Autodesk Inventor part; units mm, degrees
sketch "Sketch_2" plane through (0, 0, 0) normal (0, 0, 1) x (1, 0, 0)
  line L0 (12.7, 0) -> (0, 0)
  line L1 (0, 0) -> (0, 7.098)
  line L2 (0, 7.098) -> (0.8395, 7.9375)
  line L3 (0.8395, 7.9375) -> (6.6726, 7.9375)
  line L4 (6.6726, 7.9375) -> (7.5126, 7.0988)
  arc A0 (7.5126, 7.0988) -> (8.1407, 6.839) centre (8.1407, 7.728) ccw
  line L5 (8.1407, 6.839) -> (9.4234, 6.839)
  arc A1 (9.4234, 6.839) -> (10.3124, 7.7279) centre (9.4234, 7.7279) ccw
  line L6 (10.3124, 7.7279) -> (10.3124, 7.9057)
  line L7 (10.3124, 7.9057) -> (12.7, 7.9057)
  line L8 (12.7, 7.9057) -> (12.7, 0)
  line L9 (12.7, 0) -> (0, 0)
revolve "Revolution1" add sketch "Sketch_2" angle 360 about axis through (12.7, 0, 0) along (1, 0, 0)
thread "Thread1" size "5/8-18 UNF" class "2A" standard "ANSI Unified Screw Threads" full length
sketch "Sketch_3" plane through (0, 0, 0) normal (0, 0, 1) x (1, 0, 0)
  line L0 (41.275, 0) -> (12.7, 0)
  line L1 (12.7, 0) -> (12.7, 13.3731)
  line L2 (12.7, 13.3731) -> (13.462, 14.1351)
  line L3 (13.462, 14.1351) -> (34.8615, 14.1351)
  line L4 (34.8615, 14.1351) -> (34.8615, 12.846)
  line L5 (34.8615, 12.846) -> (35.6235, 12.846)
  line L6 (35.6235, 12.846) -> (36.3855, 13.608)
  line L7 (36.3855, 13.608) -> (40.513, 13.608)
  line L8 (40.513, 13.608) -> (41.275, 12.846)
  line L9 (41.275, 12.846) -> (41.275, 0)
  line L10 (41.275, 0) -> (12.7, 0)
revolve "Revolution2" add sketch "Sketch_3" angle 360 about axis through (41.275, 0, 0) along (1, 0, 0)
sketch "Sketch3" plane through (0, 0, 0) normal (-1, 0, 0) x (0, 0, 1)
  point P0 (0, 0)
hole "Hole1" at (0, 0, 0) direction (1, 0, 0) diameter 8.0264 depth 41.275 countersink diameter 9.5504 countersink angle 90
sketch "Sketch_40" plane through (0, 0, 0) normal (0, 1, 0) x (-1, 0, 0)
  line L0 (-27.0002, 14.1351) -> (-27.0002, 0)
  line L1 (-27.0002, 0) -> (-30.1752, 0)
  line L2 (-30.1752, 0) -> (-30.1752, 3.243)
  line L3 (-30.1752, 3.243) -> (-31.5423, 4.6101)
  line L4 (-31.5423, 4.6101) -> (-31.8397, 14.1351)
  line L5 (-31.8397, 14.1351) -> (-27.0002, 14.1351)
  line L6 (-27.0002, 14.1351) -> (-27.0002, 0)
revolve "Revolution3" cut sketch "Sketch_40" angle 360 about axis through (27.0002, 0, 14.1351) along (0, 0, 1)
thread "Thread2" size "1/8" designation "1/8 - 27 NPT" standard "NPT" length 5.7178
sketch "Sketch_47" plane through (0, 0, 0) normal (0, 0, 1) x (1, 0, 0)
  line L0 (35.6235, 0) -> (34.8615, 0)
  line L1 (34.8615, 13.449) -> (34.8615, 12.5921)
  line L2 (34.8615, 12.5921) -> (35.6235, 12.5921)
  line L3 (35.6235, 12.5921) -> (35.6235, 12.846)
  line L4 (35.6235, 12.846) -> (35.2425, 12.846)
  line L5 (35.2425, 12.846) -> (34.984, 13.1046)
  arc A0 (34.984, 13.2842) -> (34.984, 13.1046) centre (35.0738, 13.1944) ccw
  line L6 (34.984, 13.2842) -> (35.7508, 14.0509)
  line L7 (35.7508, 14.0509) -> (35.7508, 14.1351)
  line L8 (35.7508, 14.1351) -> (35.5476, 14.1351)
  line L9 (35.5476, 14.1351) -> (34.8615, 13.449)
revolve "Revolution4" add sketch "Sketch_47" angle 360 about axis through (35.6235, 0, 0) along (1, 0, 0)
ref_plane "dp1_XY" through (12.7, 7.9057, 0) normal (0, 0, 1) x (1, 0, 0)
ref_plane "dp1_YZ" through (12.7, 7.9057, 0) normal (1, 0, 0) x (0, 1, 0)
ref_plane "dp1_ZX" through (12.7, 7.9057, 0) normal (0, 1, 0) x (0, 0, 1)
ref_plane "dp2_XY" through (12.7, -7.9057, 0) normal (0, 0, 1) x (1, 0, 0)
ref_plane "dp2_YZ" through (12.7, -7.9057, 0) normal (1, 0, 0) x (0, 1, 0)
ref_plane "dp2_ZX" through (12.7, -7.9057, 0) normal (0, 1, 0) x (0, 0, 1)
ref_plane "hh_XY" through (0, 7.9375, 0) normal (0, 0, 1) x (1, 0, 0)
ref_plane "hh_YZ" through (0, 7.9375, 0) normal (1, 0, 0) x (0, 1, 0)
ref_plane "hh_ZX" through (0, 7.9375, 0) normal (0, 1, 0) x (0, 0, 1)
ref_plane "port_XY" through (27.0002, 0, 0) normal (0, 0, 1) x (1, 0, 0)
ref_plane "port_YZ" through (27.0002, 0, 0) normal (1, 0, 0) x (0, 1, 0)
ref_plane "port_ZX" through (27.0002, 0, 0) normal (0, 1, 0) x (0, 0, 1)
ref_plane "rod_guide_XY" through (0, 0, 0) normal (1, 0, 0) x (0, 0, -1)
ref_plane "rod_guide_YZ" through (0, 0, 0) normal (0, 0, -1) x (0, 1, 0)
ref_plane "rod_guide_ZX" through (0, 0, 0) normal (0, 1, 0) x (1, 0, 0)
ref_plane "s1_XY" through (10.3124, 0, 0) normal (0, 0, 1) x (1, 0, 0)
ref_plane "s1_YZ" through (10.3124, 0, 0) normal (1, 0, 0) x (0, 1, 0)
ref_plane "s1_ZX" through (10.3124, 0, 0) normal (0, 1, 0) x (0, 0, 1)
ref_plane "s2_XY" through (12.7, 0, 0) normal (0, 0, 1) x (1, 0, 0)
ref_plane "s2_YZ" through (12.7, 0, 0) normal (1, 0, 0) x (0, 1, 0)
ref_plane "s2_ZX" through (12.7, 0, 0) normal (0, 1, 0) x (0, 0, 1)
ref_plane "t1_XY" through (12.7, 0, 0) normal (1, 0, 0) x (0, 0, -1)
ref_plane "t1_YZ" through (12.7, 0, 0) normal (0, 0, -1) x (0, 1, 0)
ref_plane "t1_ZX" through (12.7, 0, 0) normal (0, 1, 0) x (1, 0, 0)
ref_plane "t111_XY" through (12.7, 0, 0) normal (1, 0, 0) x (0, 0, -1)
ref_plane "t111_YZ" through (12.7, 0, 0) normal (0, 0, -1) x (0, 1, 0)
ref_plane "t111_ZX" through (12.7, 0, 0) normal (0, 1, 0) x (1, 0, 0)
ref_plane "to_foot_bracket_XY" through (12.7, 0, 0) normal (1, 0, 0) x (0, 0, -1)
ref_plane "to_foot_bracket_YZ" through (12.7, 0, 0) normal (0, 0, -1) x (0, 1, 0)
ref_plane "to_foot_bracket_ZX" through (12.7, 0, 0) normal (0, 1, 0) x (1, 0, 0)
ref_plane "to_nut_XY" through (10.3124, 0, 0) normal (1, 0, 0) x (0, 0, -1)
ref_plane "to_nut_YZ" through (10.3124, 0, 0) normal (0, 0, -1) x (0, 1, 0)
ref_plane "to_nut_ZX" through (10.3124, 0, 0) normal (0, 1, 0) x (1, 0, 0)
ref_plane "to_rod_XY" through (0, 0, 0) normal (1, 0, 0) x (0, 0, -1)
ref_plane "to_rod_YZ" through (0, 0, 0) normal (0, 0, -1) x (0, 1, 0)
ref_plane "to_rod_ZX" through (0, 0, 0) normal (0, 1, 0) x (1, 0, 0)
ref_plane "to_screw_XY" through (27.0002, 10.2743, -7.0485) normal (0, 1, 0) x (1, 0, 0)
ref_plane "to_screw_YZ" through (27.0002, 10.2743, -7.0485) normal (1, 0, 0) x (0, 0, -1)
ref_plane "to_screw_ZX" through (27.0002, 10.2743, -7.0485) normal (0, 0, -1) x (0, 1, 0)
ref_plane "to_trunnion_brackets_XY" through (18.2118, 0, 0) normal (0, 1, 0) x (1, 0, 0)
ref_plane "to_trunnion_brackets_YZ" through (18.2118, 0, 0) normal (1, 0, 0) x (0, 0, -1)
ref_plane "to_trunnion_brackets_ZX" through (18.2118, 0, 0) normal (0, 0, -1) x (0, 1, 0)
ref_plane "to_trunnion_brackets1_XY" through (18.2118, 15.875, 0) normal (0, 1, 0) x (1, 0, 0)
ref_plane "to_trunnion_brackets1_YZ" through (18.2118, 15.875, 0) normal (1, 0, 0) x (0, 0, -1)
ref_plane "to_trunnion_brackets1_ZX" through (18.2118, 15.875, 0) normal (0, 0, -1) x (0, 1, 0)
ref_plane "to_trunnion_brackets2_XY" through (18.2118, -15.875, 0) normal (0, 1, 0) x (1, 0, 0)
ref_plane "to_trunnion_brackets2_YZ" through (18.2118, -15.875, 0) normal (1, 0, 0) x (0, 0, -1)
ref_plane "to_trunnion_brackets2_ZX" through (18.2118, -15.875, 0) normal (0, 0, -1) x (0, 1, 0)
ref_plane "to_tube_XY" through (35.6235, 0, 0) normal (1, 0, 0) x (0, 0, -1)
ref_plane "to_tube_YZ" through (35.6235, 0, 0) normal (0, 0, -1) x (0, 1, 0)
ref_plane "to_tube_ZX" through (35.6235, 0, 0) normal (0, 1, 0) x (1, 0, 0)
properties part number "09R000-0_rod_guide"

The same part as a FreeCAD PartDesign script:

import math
import FreeCAD as App
import Part
import Sketcher
Q = App.Units.Quantity

doc = App.newDocument("Part")
body = doc.addObject("PartDesign::Body", "Body")

# Sketch on XY plane
sketch1 = body.newObject("Sketcher::SketchObject", "Sketch")
sketch1.AttachmentSupport = (doc.getObject("XY_Plane"), [""])
sketch1.MapMode = "FlatFace"
sketch1.addGeometry([
    Part.LineSegment(App.Vector(0, 0, 0), App.Vector(12.7, 0, 0)),  # 0
    Part.LineSegment(App.Vector(12.7, 0, 0), App.Vector(12.7, 7.91, 0)),  # 1
    Part.LineSegment(App.Vector(12.7, 7.91, 0), App.Vector(10.31, 7.91, 0)),  # 2
    Part.LineSegment(App.Vector(10.31, 7.91, 0), App.Vector(10.31, 7.73, 0)),  # 3
    Part.ArcOfCircle(Part.Circle(App.Vector(9.42, 7.73, 0), App.Vector(0, 0, 1), 0.89), math.radians(-90), math.radians(0)),  # 4
    Part.LineSegment(App.Vector(9.42, 6.84, 0), App.Vector(8.14, 6.84, 0)),  # 5
    Part.ArcOfCircle(Part.Circle(App.Vector(8.14, 7.73, 0), App.Vector(0, 0, 1), 0.89), math.radians(-135), math.radians(-90)),  # 6
    Part.LineSegment(App.Vector(7.51, 7.1, 0), App.Vector(6.67, 7.94, 0)),  # 7
    Part.LineSegment(App.Vector(6.67, 7.94, 0), App.Vector(0.84, 7.94, 0)),  # 8
    Part.LineSegment(App.Vector(0.84, 7.94, 0), App.Vector(0, 7.1, 0)),  # 9
    Part.LineSegment(App.Vector(0, 7.1, 0), App.Vector(0, 0, 0)),  # 10
], False)
sketch1.addConstraint([
    Sketcher.Constraint("Coincident", 0, 2, 1, 1),
    Sketcher.Constraint("Coincident", 1, 2, 2, 1),
    Sketcher.Constraint("Coincident", 2, 2, 3, 1),
    Sketcher.Constraint("Tangent", 3, 2, 4, 2),
    Sketcher.Constraint("Tangent", 4, 1, 5, 1),
    Sketcher.Constraint("Tangent", 5, 2, 6, 2),
    Sketcher.Constraint("Tangent", 6, 1, 7, 1),
    Sketcher.Constraint("Coincident", 7, 2, 8, 1),
    Sketcher.Constraint("Coincident", 8, 2, 9, 1),
    Sketcher.Constraint("Coincident", 9, 2, 10, 1),
    Sketcher.Constraint("Coincident", 10, 2, 0, 1),
    Sketcher.Constraint("Horizontal", 0),
    Sketcher.Constraint("Vertical", 1),
    Sketcher.Constraint("Horizontal", 2),
    Sketcher.Constraint("Vertical", 3),
    Sketcher.Constraint("Horizontal", 5),
    Sketcher.Constraint("Horizontal", 8),
    Sketcher.Constraint("Vertical", 10),
    Sketcher.Constraint("Coincident", 10, 2, -1, 1),
    Sketcher.Constraint("Equal", 4, 6),
    Sketcher.Constraint("DistanceX", 0, 1, 0, 2, Q("0.5 in")),
    Sketcher.Constraint("Angle", 9, Q("-135 deg")),
    Sketcher.Constraint("Radius", 4, Q("0.035 in")),
    Sketcher.Constraint("DistanceX", 2, 2, 2, 1, Q("0.094 in")),
    Sketcher.Constraint("DistanceY", 3, 2, 3, 1, Q("0.007 in")),
    Sketcher.Constraint("DistanceX", 5, 2, 5, 1, Q("0.0505 in")),
    Sketcher.Constraint("DistanceY", -1, 1, 7, 2, Q("0.3125 in")),
    Sketcher.Constraint("DistanceX", 8, 2, 8, 1, Q("5.833 mm")),
    Sketcher.Constraint("DistanceY", 1, 1, 1, 2, Q("7.9057 mm")),
    Sketcher.Constraint("DistanceY", 10, 2, 10, 1, Q("7.098 mm")),
])
revolution = body.newObject("PartDesign::Revolution", "Revolution")
revolution.Profile = sketch1
revolution.ReferenceAxis = (sketch1, ["H_Axis"])
revolution.Angle = 360

# Sketch on XY plane
sketch2 = body.newObject("Sketcher::SketchObject", "Sketch001")
sketch2.AttachmentSupport = (doc.getObject("XY_Plane"), [""])
sketch2.MapMode = "FlatFace"
sketch2.addGeometry([
    Part.LineSegment(App.Vector(12.7, 0, 0), App.Vector(41.3, 0, 0)),  # 0
    Part.LineSegment(App.Vector(41.3, 0, 0), App.Vector(41.3, 12.8, 0)),  # 1
    Part.LineSegment(App.Vector(41.3, 12.8, 0), App.Vector(40.5, 13.6, 0)),  # 2
    Part.LineSegment(App.Vector(40.5, 13.6, 0), App.Vector(36.4, 13.6, 0)),  # 3
    Part.LineSegment(App.Vector(36.4, 13.6, 0), App.Vector(35.6, 12.8, 0)),  # 4
    Part.LineSegment(App.Vector(35.6, 12.8, 0), App.Vector(34.9, 12.8, 0)),  # 5
    Part.LineSegment(App.Vector(34.9, 12.8, 0), App.Vector(34.9, 14.1, 0)),  # 6
    Part.LineSegment(App.Vector(34.9, 14.1, 0), App.Vector(13.5, 14.1, 0)),  # 7
    Part.LineSegment(App.Vector(13.5, 14.1, 0), App.Vector(12.7, 13.4, 0)),  # 8
    Part.LineSegment(App.Vector(12.7, 13.4, 0), App.Vector(12.7, 0, 0)),  # 9
], False)
sketch2.addConstraint([
    Sketcher.Constraint("Coincident", 0, 2, 1, 1),
    Sketcher.Constraint("Coincident", 1, 2, 2, 1),
    Sketcher.Constraint("Coincident", 2, 2, 3, 1),
    Sketcher.Constraint("Coincident", 3, 2, 4, 1),
    Sketcher.Constraint("Coincident", 4, 2, 5, 1),
    Sketcher.Constraint("Coincident", 5, 2, 6, 1),
    Sketcher.Constraint("Coincident", 6, 2, 7, 1),
    Sketcher.Constraint("Coincident", 7, 2, 8, 1),
    Sketcher.Constraint("Coincident", 8, 2, 9, 1),
    Sketcher.Constraint("Coincident", 9, 2, 0, 1),
    Sketcher.Constraint("Horizontal", 0),
    Sketcher.Constraint("Vertical", 1),
    Sketcher.Constraint("Horizontal", 3),
    Sketcher.Constraint("Horizontal", 5),
    Sketcher.Constraint("Vertical", 6),
    Sketcher.Constraint("Horizontal", 7),
    Sketcher.Constraint("Vertical", 9),
    Sketcher.Constraint("PointOnObject", 0, 2, -1),
    Sketcher.Constraint("Perpendicular", 2, 4),
    Sketcher.Constraint("Parallel", 4, 8),
    Sketcher.Constraint("Horizontal", 1, 2, 4, 2),
    Sketcher.Constraint("Equal", 2, 4),
    Sketcher.Constraint("Equal", 4, 8),
    Sketcher.Constraint("DistanceX", 5, 2, 5, 1, Q("0.03 in")),
    Sketcher.Constraint("DistanceX", -1, 1, 8, 2, Q("0.5 in")),
    Sketcher.Constraint("DistanceX", 0, 1, 0, 2, Q("1.125 in")),
    Sketcher.Constraint("DistanceX", -1, 1, 7, 2, Q("0.53 in")),
    Sketcher.Constraint("DistanceX", 3, 2, 3, 1, Q("0.1625 in")),
    Sketcher.Constraint("DistanceY", 9, 2, 9, 1, Q("0.5265 in")),
    Sketcher.Constraint("DistanceY", 1, 1, 1, 2, Q("12.846 mm")),
])
revolution2 = body.newObject("PartDesign::Revolution", "Revolution001")
revolution2.Profile = sketch2
revolution2.ReferenceAxis = (sketch2, ["H_Axis"])
revolution2.Angle = 360

# Sketch on YZ plane
sketch3 = body.newObject("Sketcher::SketchObject", "Sketch002")
sketch3.AttachmentSupport = (doc.getObject("YZ_Plane"), [""])
sketch3.MapMode = "FlatFace"
sketch3.addGeometry(Part.Circle(App.Vector(0, 0, 0), App.Vector(0, 0, 1), 4), False)
sketch3.addConstraint([
    Sketcher.Constraint("Coincident", 0, 3, -1, 1),
    Sketcher.Constraint("Diameter", 0, Q("0.316 in")),
])
doc.recompute()
hole = body.newObject("PartDesign::Hole", "Hole")
hole.Profile = sketch3
hole.ThreadType = "None"
hole.Diameter = Q("0.316 in")
hole.DepthType = "Dimension"
hole.Depth = Q("1.625 in")
hole.DrillPoint = "Flat"
hole.HoleCutType = "Countersink"
hole.HoleCutDiameter = Q("0.376 in")
hole.HoleCutCountersinkAngle = 90
hole.Reversed = True

# Sketch on XZ plane
sketch4 = body.newObject("Sketcher::SketchObject", "Sketch003")
sketch4.AttachmentSupport = (doc.getObject("XZ_Plane"), [""])
sketch4.MapMode = "FlatFace"
sketch4.addGeometry([
    Part.LineSegment(App.Vector(27, 0, 0), App.Vector(27, 14.1, 0)),  # 0
    Part.LineSegment(App.Vector(27, 14.1, 0), App.Vector(31.8, 14.1, 0)),  # 1
    Part.LineSegment(App.Vector(31.8, 14.1, 0), App.Vector(31.5, 4.6, 0)),  # 2
    Part.LineSegment(App.Vector(31.5, 4.6, 0), App.Vector(30.2, 3.2, 0)),  # 3
    Part.LineSegment(App.Vector(30.2, 3.2, 0), App.Vector(30.2, 0, 0)),  # 4
    Part.LineSegment(App.Vector(30.2, 0, 0), App.Vector(27, 0, 0)),  # 5
], False)
sketch4.addGeometry(Part.LineSegment(App.Vector(27, 0, 0), App.Vector(27, 14.1, 0)), True)  # axis
sketch4.addConstraint([
    Sketcher.Constraint("Coincident", 0, 2, 1, 1),
    Sketcher.Constraint("Coincident", 1, 2, 2, 1),
    Sketcher.Constraint("Coincident", 2, 2, 3, 1),
    Sketcher.Constraint("Coincident", 3, 2, 4, 1),
    Sketcher.Constraint("Coincident", 4, 2, 5, 1),
    Sketcher.Constraint("Coincident", 5, 2, 0, 1),
    Sketcher.Constraint("Vertical", 0),
    Sketcher.Constraint("Horizontal", 1),
    Sketcher.Constraint("Vertical", 4),
    Sketcher.Constraint("Horizontal", 5),
    Sketcher.Constraint("Vertical", 6),
    Sketcher.Constraint("Coincident", 6, 1, 5, 2),
    Sketcher.Constraint("PointOnObject", 4, 2, -1),
    Sketcher.Constraint("Horizontal", 1, 2, 6, 2),
    Sketcher.Constraint("Angle", 3, Q("-135 deg")),
    Sketcher.Constraint("DistanceX", 5, 2, 5, 1, Q("0.125 in")),
    Sketcher.Constraint("DistanceY", 0, 1, 0, 2, Q("0.5565 in")),
    Sketcher.Constraint("DistanceX", -1, 1, 0, 2, Q("1.063 in")),
    Sketcher.Constraint("DistanceY", 2, 2, 1, 2, Q("0.375 in")),
    Sketcher.Constraint("DistanceX", 1, 1, 1, 2, Q("4.8395 mm")),
    Sketcher.Constraint("DistanceY", 4, 2, 4, 1, Q("3.243 mm")),
])
groove = body.newObject("PartDesign::Groove", "Groove")
groove.Profile = sketch4
groove.ReferenceAxis = (sketch4, ["Axis0"])
groove.Angle = 360

# Sketch on XY plane
sketch5 = body.newObject("Sketcher::SketchObject", "Sketch004")
sketch5.AttachmentSupport = (doc.getObject("XY_Plane"), [""])
sketch5.MapMode = "FlatFace"
sketch5.addGeometry([
    Part.LineSegment(App.Vector(35.55, 14.14, 0), App.Vector(34.86, 13.45, 0)),  # 0
    Part.LineSegment(App.Vector(34.86, 13.45, 0), App.Vector(34.86, 12.59, 0)),  # 1
    Part.LineSegment(App.Vector(34.86, 12.59, 0), App.Vector(35.62, 12.59, 0)),  # 2
    Part.LineSegment(App.Vector(35.62, 12.59, 0), App.Vector(35.62, 12.85, 0)),  # 3
    Part.LineSegment(App.Vector(35.62, 12.85, 0), App.Vector(35.24, 12.85, 0)),  # 4
    Part.LineSegment(App.Vector(35.24, 12.85, 0), App.Vector(34.98, 13.1, 0)),  # 5
    Part.ArcOfCircle(Part.Circle(App.Vector(35.07, 13.19, 0), App.Vector(0, 0, 1), 0.13), math.radians(135), math.radians(225)),  # 6
    Part.LineSegment(App.Vector(34.98, 13.28, 0), App.Vector(35.75, 14.05, 0)),  # 7
    Part.LineSegment(App.Vector(35.75, 14.05, 0), App.Vector(35.75, 14.14, 0)),  # 8
    Part.LineSegment(App.Vector(35.75, 14.14, 0), App.Vector(35.55, 14.14, 0)),  # 9
], False)
sketch5.addConstraint([
    Sketcher.Constraint("Coincident", 0, 2, 1, 1),
    Sketcher.Constraint("Coincident", 1, 2, 2, 1),
    Sketcher.Constraint("Coincident", 2, 2, 3, 1),
    Sketcher.Constraint("Coincident", 3, 2, 4, 1),
    Sketcher.Constraint("Coincident", 4, 2, 5, 1),
    Sketcher.Constraint("Tangent", 5, 2, 6, 2),
    Sketcher.Constraint("Tangent", 6, 1, 7, 1),
    Sketcher.Constraint("Coincident", 7, 2, 8, 1),
    Sketcher.Constraint("Coincident", 8, 2, 9, 1),
    Sketcher.Constraint("Coincident", 9, 2, 0, 1),
    Sketcher.Constraint("Vertical", 1),
    Sketcher.Constraint("Horizontal", 2),
    Sketcher.Constraint("Vertical", 3),
    Sketcher.Constraint("Horizontal", 4),
    Sketcher.Constraint("Vertical", 8),
    Sketcher.Constraint("Horizontal", 9),
    Sketcher.Constraint("Perpendicular", 0, 5),
    Sketcher.Constraint("Perpendicular", 5, 7),
    Sketcher.Constraint("Vertical", 5, 2, 6, 1),
    Sketcher.Constraint("Radius", 6, Q("0.005 in")),
    Sketcher.Constraint("DistanceX", 2, 1, 2, 2, Q("0.03 in")),
    Sketcher.Constraint("DistanceY", 3, 1, 3, 2, Q("0.01 in")),
    Sketcher.Constraint("DistanceX", 4, 2, 4, 1, Q("0.015 in")),
    Sketcher.Constraint("DistanceX", 9, 2, 9, 1, Q("0.008 in")),
    Sketcher.Constraint("DistanceY", -1, 1, 6, 1, Q("0.523 in")),
    Sketcher.Constraint("DistanceX", 0, 2, 7, 2, Q("0.035 in")),
    Sketcher.Constraint("Distance", 5, Q("0.0144 in")),
    Sketcher.Constraint("DistanceY", 1, 2, 1, 1, Q("0.857 mm")),
    Sketcher.Constraint("DistanceX", -1, 1, 0, 2, Q("1.3725 in")),
])
revolution3 = body.newObject("PartDesign::Revolution", "Revolution002")
revolution3.Profile = sketch5
revolution3.ReferenceAxis = (sketch5, ["H_Axis"])
revolution3.Angle = 360

doc.recompute()
